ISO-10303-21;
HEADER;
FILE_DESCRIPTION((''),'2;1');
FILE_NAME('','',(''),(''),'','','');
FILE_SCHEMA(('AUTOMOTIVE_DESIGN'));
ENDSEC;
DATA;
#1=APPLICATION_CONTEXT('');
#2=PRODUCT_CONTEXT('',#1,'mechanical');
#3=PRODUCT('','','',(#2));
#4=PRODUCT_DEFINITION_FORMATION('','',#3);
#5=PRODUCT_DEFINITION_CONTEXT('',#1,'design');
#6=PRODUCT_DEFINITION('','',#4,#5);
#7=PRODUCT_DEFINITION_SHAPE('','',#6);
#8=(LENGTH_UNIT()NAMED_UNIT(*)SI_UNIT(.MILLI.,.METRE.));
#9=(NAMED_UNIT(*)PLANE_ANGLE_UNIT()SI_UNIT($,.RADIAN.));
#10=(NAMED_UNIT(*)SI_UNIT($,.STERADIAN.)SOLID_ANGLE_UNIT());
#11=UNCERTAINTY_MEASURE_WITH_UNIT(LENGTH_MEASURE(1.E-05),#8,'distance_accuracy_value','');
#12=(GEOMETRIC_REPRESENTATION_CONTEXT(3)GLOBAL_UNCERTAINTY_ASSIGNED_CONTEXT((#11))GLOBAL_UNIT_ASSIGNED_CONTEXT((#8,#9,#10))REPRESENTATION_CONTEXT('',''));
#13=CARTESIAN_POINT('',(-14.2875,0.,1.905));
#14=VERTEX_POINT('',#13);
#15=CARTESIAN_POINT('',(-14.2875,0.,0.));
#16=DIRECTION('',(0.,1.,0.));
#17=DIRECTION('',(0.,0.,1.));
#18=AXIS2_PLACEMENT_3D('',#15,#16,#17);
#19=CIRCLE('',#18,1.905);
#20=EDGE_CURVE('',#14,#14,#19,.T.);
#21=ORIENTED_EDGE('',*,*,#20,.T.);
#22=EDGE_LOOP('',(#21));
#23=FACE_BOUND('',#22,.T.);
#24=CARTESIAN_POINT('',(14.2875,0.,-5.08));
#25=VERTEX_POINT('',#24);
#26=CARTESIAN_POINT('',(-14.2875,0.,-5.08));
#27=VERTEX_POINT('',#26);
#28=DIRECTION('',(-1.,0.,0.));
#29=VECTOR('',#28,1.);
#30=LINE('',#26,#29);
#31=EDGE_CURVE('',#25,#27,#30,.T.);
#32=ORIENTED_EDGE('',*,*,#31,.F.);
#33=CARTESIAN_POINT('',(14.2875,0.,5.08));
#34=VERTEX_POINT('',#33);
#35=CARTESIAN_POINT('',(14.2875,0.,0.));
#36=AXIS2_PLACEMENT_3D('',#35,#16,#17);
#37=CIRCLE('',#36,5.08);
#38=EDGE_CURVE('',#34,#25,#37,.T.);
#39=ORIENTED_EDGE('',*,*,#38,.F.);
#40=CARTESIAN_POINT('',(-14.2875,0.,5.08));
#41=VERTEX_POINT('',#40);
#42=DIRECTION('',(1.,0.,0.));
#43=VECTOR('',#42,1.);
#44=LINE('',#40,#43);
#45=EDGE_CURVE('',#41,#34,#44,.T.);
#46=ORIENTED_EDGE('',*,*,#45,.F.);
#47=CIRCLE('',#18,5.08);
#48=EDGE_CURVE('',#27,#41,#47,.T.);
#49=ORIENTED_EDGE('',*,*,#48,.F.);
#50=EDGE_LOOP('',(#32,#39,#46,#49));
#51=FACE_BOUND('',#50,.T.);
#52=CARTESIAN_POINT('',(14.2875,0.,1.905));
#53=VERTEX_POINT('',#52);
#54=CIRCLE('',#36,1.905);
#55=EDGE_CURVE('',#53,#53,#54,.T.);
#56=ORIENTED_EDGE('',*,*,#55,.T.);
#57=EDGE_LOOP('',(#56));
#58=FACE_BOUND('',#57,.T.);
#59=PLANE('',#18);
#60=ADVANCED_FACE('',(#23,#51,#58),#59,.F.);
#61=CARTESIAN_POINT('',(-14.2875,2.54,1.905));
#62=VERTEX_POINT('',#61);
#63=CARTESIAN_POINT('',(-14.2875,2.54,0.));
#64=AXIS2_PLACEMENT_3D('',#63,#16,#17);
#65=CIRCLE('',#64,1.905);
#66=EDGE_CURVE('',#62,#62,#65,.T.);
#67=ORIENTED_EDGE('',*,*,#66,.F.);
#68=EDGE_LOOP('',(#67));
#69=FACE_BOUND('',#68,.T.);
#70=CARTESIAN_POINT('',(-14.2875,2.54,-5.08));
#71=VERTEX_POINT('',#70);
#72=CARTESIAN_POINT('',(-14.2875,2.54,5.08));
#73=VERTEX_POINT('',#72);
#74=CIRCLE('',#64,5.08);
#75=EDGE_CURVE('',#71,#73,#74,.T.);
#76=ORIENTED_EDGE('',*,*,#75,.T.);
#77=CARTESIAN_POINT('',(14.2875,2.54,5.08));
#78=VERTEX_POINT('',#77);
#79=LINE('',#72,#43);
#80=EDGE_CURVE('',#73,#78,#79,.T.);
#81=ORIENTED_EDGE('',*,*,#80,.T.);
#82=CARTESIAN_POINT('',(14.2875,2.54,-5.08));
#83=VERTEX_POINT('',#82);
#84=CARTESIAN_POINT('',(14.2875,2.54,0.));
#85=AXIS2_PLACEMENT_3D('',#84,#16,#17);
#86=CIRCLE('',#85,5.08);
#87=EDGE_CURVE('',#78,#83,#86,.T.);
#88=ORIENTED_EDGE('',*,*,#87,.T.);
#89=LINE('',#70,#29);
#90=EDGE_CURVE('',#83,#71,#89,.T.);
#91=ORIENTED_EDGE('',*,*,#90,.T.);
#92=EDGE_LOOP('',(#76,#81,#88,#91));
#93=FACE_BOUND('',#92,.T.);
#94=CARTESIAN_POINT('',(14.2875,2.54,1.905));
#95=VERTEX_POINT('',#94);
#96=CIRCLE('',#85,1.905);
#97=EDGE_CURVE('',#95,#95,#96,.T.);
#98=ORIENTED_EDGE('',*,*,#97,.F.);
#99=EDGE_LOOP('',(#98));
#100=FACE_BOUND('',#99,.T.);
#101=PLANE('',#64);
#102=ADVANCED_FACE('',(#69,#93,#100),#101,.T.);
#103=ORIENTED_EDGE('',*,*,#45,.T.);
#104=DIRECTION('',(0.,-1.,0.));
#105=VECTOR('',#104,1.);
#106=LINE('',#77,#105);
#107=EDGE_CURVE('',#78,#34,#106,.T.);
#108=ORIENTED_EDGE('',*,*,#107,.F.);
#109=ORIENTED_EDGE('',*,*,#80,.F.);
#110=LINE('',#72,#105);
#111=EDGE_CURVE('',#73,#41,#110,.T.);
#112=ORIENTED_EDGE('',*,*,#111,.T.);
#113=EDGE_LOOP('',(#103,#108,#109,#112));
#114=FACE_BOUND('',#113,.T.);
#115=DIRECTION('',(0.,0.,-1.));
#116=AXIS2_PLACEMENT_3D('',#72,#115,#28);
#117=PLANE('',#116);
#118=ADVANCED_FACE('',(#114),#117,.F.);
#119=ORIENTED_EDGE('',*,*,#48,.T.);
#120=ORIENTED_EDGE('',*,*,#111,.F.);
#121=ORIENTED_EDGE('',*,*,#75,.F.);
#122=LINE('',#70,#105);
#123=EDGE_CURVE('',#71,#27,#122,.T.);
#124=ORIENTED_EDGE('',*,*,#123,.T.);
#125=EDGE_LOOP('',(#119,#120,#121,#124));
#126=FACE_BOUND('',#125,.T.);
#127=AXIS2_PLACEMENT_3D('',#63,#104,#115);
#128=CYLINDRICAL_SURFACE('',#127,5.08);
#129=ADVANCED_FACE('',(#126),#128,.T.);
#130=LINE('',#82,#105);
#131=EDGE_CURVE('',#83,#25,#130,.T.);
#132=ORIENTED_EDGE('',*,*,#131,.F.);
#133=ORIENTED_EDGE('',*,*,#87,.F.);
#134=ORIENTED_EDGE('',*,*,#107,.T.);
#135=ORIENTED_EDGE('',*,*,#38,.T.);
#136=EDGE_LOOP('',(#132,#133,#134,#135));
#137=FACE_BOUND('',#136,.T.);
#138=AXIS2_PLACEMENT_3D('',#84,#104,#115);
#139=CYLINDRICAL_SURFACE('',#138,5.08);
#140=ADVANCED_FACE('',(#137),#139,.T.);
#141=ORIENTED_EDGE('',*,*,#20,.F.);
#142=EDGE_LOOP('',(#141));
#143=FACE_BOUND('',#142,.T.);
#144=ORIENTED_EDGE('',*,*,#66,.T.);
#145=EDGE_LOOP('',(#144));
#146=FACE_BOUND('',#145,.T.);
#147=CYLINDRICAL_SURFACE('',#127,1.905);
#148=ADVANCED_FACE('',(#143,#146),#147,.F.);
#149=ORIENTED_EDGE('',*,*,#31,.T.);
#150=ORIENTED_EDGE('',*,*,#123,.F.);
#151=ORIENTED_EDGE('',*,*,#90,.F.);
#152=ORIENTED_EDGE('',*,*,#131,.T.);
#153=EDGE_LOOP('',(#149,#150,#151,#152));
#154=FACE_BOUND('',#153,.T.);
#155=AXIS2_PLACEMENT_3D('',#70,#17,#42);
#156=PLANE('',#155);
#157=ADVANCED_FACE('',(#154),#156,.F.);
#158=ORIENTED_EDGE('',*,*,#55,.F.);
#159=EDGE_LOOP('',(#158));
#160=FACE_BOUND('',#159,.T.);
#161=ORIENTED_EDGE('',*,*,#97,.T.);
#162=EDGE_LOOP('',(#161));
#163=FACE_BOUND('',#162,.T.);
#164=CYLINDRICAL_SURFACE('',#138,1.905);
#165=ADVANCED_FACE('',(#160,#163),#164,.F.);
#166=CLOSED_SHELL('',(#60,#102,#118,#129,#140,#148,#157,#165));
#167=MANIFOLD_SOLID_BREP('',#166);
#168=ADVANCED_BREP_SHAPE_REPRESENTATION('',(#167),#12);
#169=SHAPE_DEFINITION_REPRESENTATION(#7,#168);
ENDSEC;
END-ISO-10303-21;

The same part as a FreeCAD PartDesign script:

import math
import FreeCAD as App
import Part
import Sketcher
Q = App.Units.Quantity

doc = App.newDocument("Part")
body = doc.addObject("PartDesign::Body", "Body")

sketch1 = body.newObject("Sketcher::SketchObject", "Sketch")
sketch1.AttachmentSupport = (doc.getObject("XZ_Plane"), [""])
sketch1.MapMode = "FlatFace"
sketch1.addGeometry(Part.LineSegment(App.Vector(14.3, -5.1, 0), App.Vector(-14.3, -5.1, 0)), False)
sketch1.addGeometry(Part.ArcOfCircle(Part.Circle(App.Vector(-14.3, 0, 0), App.Vector(0, 0, 1), 5.1), math.radians(90), math.radians(270)), False)
sketch1.addGeometry(Part.LineSegment(App.Vector(-14.3, 5.1, 0), App.Vector(14.3, 5.1, 0)), False)
sketch1.addGeometry(Part.ArcOfCircle(Part.Circle(App.Vector(14.3, 0, 0), App.Vector(0, 0, 1), 5.1), math.radians(-90), math.radians(90)), False)
sketch1.addGeometry(Part.Circle(App.Vector(14.3, 0, 0), App.Vector(0, 0, 1), 1.9), False)
sketch1.addGeometry(Part.Circle(App.Vector(-14.3, 0, 0), App.Vector(0, 0, 1), 1.9), False)
sketch1.addConstraint(Sketcher.Constraint("Tangent", 0, 2, 1, 2))
sketch1.addConstraint(Sketcher.Constraint("Tangent", 1, 1, 2, 1))
sketch1.addConstraint(Sketcher.Constraint("Tangent", 2, 2, 3, 2))
sketch1.addConstraint(Sketcher.Constraint("Tangent", 3, 1, 0, 1))
sketch1.addConstraint(Sketcher.Constraint("Horizontal", 0))
sketch1.addConstraint(Sketcher.Constraint("Horizontal", 2))
sketch1.addConstraint(Sketcher.Constraint("Coincident", 4, 3, 3, 3))
sketch1.addConstraint(Sketcher.Constraint("Coincident", 5, 3, 1, 3))
sketch1.addConstraint(Sketcher.Constraint("Equal", 4, 5))
sketch1.addConstraint(Sketcher.Constraint("Symmetric", 1, 3, 3, 3, -1, 1))
sketch1.addConstraint(Sketcher.Constraint("Radius", 1, Q("0.2 in")))
sketch1.addConstraint(Sketcher.Constraint("Diameter", 4, Q("0.15 in")))
sketch1.addConstraint(Sketcher.Constraint("DistanceX", 0, 2, 0, 1, Q("1.125 in")))
pad1 = body.newObject("PartDesign::Pad", "Pad")
pad1.Profile = sketch1
pad1.Length = Q("0.1 in")
pad1.Reversed = True

doc.recompute()
